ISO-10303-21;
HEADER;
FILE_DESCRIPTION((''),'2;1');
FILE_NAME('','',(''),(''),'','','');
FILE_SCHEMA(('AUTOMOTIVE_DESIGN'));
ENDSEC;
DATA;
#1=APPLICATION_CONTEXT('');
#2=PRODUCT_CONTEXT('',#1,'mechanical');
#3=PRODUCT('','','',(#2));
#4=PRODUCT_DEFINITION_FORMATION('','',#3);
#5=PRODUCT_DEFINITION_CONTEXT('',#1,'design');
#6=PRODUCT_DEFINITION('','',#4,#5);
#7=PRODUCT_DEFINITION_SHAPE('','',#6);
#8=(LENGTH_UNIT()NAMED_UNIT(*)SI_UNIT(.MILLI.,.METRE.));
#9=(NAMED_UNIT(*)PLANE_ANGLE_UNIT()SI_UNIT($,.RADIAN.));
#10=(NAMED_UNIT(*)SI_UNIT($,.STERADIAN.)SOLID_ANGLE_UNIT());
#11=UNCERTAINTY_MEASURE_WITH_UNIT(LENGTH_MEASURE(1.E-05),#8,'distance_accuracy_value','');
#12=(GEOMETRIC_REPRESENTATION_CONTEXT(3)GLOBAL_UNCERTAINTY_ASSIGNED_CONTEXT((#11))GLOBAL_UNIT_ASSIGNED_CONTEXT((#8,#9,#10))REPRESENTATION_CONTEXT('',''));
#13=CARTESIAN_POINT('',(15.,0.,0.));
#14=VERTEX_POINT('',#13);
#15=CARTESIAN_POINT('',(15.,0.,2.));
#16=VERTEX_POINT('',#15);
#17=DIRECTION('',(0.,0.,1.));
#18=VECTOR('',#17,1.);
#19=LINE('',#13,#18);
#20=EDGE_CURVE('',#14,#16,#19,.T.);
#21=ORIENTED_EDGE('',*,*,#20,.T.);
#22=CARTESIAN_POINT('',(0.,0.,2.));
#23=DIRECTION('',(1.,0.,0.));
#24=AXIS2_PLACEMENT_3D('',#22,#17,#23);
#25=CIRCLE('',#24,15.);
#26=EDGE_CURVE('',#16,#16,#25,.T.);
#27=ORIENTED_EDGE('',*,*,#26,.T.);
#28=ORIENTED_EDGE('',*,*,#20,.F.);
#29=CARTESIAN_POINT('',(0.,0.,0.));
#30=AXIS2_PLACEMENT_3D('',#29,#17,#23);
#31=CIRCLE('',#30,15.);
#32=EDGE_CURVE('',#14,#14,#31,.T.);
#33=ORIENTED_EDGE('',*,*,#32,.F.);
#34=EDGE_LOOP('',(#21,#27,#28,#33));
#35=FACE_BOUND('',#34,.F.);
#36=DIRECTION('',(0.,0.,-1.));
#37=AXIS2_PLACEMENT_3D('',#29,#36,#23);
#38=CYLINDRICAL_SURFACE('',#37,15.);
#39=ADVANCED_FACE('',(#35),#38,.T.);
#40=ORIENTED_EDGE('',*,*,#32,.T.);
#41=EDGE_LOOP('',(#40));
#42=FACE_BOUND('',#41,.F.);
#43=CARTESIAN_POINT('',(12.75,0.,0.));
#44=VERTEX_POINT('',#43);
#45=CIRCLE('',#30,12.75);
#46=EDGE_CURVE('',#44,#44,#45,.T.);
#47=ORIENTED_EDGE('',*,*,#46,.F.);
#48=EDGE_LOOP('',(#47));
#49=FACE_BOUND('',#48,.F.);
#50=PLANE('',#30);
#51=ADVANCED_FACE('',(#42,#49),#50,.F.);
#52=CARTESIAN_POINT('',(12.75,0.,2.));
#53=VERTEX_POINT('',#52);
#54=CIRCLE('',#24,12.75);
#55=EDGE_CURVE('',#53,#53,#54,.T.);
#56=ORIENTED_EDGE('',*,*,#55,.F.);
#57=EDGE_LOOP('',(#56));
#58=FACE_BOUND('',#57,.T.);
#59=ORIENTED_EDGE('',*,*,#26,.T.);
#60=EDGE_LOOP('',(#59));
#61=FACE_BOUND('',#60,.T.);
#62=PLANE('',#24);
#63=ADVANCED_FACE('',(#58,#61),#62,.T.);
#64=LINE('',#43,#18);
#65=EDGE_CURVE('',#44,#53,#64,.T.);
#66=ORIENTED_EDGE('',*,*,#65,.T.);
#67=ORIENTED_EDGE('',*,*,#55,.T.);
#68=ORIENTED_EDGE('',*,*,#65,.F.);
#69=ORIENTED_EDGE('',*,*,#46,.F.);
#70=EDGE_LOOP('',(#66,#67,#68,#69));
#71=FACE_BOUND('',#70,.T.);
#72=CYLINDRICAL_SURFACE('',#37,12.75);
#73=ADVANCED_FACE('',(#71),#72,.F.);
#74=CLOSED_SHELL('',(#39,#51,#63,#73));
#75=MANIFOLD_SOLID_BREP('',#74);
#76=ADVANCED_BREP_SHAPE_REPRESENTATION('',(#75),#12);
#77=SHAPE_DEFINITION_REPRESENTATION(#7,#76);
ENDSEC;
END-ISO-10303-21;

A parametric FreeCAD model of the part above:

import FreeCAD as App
import Part
import Sketcher
from FreeCAD import Vector
Q = App.Units.Quantity

doc = App.newDocument("Part")
body = doc.addObject("PartDesign::Body", "Body")

# Sketch on XY plane
sketch1 = body.newObject("Sketcher::SketchObject", "Sketch")
sketch1.AttachmentSupport = (doc.getObject("XY_Plane"), [""])
sketch1.MapMode = "FlatFace"
sketch1.addGeometry(Part.Circle(Vector(0, 0, 0), Vector(0, 0, 1), 15), False)
sketch1.addGeometry(Part.Circle(Vector(0, 0, 0), Vector(0, 0, 1), 13), False)
sketch1.addConstraint(Sketcher.Constraint("Coincident", 0, 3, -1, 1))
sketch1.addConstraint(Sketcher.Constraint("Coincident", 1, 3, -1, 1))
sketch1.addConstraint(Sketcher.Constraint("Diameter", 0, Q("30 mm")))
sketch1.addConstraint(Sketcher.Constraint("Diameter", 1, Q("25.5 mm")))
pad1 = body.newObject("PartDesign::Pad", "Pad")
pad1.Profile = sketch1
pad1.Length = 2

doc.recompute()
